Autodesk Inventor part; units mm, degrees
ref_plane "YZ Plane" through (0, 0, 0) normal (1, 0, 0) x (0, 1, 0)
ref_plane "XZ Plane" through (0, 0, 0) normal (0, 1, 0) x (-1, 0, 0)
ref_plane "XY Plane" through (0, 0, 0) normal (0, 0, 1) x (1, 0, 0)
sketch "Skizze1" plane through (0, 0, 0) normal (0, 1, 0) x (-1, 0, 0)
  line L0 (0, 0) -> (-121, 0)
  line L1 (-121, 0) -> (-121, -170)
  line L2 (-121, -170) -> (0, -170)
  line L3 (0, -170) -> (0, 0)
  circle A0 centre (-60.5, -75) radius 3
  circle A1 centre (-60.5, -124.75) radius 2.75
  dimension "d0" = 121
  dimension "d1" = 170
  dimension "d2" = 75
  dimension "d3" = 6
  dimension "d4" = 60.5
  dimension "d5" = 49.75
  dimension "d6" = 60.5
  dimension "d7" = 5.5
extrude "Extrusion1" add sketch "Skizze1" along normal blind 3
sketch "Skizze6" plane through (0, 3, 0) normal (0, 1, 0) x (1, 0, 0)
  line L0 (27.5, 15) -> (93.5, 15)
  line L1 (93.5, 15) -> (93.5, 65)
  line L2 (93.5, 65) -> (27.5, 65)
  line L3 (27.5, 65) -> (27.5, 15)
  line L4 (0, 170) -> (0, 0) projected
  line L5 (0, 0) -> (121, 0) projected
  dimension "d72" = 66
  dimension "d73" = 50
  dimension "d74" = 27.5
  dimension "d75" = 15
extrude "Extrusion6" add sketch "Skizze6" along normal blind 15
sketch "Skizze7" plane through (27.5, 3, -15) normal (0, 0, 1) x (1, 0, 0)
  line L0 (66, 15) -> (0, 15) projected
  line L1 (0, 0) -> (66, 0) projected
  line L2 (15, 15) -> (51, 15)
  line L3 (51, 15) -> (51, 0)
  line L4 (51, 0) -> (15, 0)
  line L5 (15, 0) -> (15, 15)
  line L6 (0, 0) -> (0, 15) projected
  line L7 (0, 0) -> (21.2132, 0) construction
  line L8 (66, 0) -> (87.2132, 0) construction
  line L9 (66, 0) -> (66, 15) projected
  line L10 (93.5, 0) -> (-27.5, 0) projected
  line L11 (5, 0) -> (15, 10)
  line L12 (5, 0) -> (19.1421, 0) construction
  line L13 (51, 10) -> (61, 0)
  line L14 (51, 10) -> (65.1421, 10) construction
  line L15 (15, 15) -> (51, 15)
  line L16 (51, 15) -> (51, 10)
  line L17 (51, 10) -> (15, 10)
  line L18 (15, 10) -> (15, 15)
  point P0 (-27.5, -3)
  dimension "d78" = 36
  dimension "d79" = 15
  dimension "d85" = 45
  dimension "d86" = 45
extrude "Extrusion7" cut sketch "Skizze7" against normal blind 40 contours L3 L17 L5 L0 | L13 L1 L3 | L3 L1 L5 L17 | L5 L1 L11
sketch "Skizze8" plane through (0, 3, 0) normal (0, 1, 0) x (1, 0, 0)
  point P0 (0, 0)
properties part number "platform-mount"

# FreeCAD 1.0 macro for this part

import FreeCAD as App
import Part
import Sketcher

doc = App.newDocument("Part")
body = doc.addObject("PartDesign::Body", "Body")

# Sketch on XZ plane
sketch1 = body.newObject("Sketcher::SketchObject", "Sketch")
sketch1.AttachmentSupport = (doc.getObject("XZ_Plane"), [""])
sketch1.MapMode = "FlatFace"
sketch1.addGeometry([
    Part.LineSegment(App.Vector(0, -170, 0), App.Vector(0, 0, 0)),  # 0
    Part.LineSegment(App.Vector(0, 0, 0), App.Vector(121, 0, 0)),  # 1
    Part.LineSegment(App.Vector(121, 0, 0), App.Vector(121, -170, 0)),  # 2
    Part.LineSegment(App.Vector(121, -170, 0), App.Vector(0, -170, 0)),  # 3
    Part.Circle(App.Vector(60.5, -124.8, 0), App.Vector(0, 0, 1), 2.8),  # 4
    Part.Circle(App.Vector(60.5, -75, 0), App.Vector(0, 0, 1), 3),  # 5
], False)
sketch1.addConstraint([
    Sketcher.Constraint("Coincident", 0, 2, 1, 1),
    Sketcher.Constraint("Coincident", 1, 2, 2, 1),
    Sketcher.Constraint("Coincident", 2, 2, 3, 1),
    Sketcher.Constraint("Coincident", 3, 2, 0, 1),
    Sketcher.Constraint("Vertical", 0),
    Sketcher.Constraint("Horizontal", 1),
    Sketcher.Constraint("Vertical", 2),
    Sketcher.Constraint("Horizontal", 3),
    Sketcher.Constraint("Coincident", 0, 2, -1, 1),
    Sketcher.Constraint("Vertical", 4, 3, 5, 3),
    Sketcher.Constraint("Diameter", 5, 6.0),
    Sketcher.Constraint("Diameter", 4, 5.5),
    Sketcher.Constraint("DistanceX", 1, 1, 1, 2, 121.0),
    Sketcher.Constraint("DistanceY", 0, 1, 0, 2, 170.0),
    Sketcher.Constraint("DistanceY", 5, 3, -1, 1, 75.0),
    Sketcher.Constraint("DistanceX", -1, 1, 4, 3, 60.5),
    Sketcher.Constraint("DistanceY", 4, 3, 5, 3, 49.75),
])
pad1 = body.newObject("PartDesign::Pad", "Pad")
pad1.Profile = sketch1
pad1.Length = 3
pad1.Reversed = True

# Sketch on XZ plane
sketch2 = body.newObject("Sketcher::SketchObject", "Sketch001")
sketch2.AttachmentSupport = (doc.getObject("XZ_Plane"), [""])
sketch2.MapMode = "FlatFace"
sketch2.AttachmentOffset = App.Placement(App.Vector(0, 0, -3), App.Rotation())
sketch2.addGeometry([
    Part.LineSegment(App.Vector(28, -65, 0), App.Vector(28, -15, 0)),
    Part.LineSegment(App.Vector(28, -15, 0), App.Vector(94, -15, 0)),
    Part.LineSegment(App.Vector(94, -15, 0), App.Vector(94, -65, 0)),
    Part.LineSegment(App.Vector(94, -65, 0), App.Vector(28, -65, 0)),
], False)
sketch2.addConstraint([
    Sketcher.Constraint("Coincident", 0, 2, 1, 1),
    Sketcher.Constraint("Coincident", 1, 2, 2, 1),
    Sketcher.Constraint("Coincident", 2, 2, 3, 1),
    Sketcher.Constraint("Coincident", 3, 2, 0, 1),
    Sketcher.Constraint("Vertical", 0),
    Sketcher.Constraint("Horizontal", 1),
    Sketcher.Constraint("Vertical", 2),
    Sketcher.Constraint("Horizontal", 3),
    Sketcher.Constraint("DistanceX", 1, 1, 1, 2, 66.0),
    Sketcher.Constraint("DistanceY", 0, 1, 0, 2, 50.0),
    Sketcher.Constraint("DistanceY", 0, 2, -1, 1, 15.0),
    Sketcher.Constraint("DistanceX", -1, 1, 0, 2, 27.5),
])
pad2 = body.newObject("PartDesign::Pad", "Pad001")
pad2.Profile = sketch2
pad2.Length = 15
pad2.Reversed = True

# Sketch on XY plane
sketch3 = body.newObject("Sketcher::SketchObject", "Sketch002")
sketch3.AttachmentSupport = (doc.getObject("XY_Plane"), [""])
sketch3.MapMode = "FlatFace"
sketch3.AttachmentOffset = App.Placement(App.Vector(0, 0, -15), App.Rotation())
sketch3.addGeometry([
    Part.LineSegment(App.Vector(78, 13, 0), App.Vector(78, 18, 0)),  # 0
    Part.LineSegment(App.Vector(78, 18, 0), App.Vector(42, 18, 0)),  # 1
    Part.LineSegment(App.Vector(42, 18, 0), App.Vector(42, 13, 0)),  # 2
    Part.LineSegment(App.Vector(42, 13, 0), App.Vector(32, 3, 0)),  # 3
    Part.LineSegment(App.Vector(32, 3, 0), App.Vector(88, 3, 0)),  # 4
    Part.LineSegment(App.Vector(88, 3, 0), App.Vector(78, 13, 0)),  # 5
], False)
sketch3.addConstraint([
    Sketcher.Constraint("Coincident", 0, 2, 1, 1),
    Sketcher.Constraint("Coincident", 1, 2, 2, 1),
    Sketcher.Constraint("Coincident", 2, 2, 3, 1),
    Sketcher.Constraint("Coincident", 3, 2, 4, 1),
    Sketcher.Constraint("Coincident", 4, 2, 5, 1),
    Sketcher.Constraint("Coincident", 5, 2, 0, 1),
    Sketcher.Constraint("Vertical", 0),
    Sketcher.Constraint("Horizontal", 1),
    Sketcher.Constraint("Vertical", 2),
    Sketcher.Constraint("Horizontal", 4),
    Sketcher.Constraint("Perpendicular", 3, 5),
    Sketcher.Constraint("Horizontal", 2, 2, 5, 2),
    Sketcher.Constraint("Equal", 3, 5),
    Sketcher.Constraint("DistanceX", 1, 2, 1, 1, 36.0),
    Sketcher.Constraint("DistanceY", 3, 2, 1, 2, 15.0),
    Sketcher.Constraint("DistanceX", 4, 1, 4, 2, 56.0),
    Sketcher.Constraint("DistanceY", -1, 1, 0, 2, 18.0),
    Sketcher.Constraint("DistanceX", -1, 1, 0, 2, 78.5),
])
pocket1 = body.newObject("PartDesign::Pocket", "Pocket")
pocket1.Profile = sketch3
pocket1.Length = 40

doc.recompute()
